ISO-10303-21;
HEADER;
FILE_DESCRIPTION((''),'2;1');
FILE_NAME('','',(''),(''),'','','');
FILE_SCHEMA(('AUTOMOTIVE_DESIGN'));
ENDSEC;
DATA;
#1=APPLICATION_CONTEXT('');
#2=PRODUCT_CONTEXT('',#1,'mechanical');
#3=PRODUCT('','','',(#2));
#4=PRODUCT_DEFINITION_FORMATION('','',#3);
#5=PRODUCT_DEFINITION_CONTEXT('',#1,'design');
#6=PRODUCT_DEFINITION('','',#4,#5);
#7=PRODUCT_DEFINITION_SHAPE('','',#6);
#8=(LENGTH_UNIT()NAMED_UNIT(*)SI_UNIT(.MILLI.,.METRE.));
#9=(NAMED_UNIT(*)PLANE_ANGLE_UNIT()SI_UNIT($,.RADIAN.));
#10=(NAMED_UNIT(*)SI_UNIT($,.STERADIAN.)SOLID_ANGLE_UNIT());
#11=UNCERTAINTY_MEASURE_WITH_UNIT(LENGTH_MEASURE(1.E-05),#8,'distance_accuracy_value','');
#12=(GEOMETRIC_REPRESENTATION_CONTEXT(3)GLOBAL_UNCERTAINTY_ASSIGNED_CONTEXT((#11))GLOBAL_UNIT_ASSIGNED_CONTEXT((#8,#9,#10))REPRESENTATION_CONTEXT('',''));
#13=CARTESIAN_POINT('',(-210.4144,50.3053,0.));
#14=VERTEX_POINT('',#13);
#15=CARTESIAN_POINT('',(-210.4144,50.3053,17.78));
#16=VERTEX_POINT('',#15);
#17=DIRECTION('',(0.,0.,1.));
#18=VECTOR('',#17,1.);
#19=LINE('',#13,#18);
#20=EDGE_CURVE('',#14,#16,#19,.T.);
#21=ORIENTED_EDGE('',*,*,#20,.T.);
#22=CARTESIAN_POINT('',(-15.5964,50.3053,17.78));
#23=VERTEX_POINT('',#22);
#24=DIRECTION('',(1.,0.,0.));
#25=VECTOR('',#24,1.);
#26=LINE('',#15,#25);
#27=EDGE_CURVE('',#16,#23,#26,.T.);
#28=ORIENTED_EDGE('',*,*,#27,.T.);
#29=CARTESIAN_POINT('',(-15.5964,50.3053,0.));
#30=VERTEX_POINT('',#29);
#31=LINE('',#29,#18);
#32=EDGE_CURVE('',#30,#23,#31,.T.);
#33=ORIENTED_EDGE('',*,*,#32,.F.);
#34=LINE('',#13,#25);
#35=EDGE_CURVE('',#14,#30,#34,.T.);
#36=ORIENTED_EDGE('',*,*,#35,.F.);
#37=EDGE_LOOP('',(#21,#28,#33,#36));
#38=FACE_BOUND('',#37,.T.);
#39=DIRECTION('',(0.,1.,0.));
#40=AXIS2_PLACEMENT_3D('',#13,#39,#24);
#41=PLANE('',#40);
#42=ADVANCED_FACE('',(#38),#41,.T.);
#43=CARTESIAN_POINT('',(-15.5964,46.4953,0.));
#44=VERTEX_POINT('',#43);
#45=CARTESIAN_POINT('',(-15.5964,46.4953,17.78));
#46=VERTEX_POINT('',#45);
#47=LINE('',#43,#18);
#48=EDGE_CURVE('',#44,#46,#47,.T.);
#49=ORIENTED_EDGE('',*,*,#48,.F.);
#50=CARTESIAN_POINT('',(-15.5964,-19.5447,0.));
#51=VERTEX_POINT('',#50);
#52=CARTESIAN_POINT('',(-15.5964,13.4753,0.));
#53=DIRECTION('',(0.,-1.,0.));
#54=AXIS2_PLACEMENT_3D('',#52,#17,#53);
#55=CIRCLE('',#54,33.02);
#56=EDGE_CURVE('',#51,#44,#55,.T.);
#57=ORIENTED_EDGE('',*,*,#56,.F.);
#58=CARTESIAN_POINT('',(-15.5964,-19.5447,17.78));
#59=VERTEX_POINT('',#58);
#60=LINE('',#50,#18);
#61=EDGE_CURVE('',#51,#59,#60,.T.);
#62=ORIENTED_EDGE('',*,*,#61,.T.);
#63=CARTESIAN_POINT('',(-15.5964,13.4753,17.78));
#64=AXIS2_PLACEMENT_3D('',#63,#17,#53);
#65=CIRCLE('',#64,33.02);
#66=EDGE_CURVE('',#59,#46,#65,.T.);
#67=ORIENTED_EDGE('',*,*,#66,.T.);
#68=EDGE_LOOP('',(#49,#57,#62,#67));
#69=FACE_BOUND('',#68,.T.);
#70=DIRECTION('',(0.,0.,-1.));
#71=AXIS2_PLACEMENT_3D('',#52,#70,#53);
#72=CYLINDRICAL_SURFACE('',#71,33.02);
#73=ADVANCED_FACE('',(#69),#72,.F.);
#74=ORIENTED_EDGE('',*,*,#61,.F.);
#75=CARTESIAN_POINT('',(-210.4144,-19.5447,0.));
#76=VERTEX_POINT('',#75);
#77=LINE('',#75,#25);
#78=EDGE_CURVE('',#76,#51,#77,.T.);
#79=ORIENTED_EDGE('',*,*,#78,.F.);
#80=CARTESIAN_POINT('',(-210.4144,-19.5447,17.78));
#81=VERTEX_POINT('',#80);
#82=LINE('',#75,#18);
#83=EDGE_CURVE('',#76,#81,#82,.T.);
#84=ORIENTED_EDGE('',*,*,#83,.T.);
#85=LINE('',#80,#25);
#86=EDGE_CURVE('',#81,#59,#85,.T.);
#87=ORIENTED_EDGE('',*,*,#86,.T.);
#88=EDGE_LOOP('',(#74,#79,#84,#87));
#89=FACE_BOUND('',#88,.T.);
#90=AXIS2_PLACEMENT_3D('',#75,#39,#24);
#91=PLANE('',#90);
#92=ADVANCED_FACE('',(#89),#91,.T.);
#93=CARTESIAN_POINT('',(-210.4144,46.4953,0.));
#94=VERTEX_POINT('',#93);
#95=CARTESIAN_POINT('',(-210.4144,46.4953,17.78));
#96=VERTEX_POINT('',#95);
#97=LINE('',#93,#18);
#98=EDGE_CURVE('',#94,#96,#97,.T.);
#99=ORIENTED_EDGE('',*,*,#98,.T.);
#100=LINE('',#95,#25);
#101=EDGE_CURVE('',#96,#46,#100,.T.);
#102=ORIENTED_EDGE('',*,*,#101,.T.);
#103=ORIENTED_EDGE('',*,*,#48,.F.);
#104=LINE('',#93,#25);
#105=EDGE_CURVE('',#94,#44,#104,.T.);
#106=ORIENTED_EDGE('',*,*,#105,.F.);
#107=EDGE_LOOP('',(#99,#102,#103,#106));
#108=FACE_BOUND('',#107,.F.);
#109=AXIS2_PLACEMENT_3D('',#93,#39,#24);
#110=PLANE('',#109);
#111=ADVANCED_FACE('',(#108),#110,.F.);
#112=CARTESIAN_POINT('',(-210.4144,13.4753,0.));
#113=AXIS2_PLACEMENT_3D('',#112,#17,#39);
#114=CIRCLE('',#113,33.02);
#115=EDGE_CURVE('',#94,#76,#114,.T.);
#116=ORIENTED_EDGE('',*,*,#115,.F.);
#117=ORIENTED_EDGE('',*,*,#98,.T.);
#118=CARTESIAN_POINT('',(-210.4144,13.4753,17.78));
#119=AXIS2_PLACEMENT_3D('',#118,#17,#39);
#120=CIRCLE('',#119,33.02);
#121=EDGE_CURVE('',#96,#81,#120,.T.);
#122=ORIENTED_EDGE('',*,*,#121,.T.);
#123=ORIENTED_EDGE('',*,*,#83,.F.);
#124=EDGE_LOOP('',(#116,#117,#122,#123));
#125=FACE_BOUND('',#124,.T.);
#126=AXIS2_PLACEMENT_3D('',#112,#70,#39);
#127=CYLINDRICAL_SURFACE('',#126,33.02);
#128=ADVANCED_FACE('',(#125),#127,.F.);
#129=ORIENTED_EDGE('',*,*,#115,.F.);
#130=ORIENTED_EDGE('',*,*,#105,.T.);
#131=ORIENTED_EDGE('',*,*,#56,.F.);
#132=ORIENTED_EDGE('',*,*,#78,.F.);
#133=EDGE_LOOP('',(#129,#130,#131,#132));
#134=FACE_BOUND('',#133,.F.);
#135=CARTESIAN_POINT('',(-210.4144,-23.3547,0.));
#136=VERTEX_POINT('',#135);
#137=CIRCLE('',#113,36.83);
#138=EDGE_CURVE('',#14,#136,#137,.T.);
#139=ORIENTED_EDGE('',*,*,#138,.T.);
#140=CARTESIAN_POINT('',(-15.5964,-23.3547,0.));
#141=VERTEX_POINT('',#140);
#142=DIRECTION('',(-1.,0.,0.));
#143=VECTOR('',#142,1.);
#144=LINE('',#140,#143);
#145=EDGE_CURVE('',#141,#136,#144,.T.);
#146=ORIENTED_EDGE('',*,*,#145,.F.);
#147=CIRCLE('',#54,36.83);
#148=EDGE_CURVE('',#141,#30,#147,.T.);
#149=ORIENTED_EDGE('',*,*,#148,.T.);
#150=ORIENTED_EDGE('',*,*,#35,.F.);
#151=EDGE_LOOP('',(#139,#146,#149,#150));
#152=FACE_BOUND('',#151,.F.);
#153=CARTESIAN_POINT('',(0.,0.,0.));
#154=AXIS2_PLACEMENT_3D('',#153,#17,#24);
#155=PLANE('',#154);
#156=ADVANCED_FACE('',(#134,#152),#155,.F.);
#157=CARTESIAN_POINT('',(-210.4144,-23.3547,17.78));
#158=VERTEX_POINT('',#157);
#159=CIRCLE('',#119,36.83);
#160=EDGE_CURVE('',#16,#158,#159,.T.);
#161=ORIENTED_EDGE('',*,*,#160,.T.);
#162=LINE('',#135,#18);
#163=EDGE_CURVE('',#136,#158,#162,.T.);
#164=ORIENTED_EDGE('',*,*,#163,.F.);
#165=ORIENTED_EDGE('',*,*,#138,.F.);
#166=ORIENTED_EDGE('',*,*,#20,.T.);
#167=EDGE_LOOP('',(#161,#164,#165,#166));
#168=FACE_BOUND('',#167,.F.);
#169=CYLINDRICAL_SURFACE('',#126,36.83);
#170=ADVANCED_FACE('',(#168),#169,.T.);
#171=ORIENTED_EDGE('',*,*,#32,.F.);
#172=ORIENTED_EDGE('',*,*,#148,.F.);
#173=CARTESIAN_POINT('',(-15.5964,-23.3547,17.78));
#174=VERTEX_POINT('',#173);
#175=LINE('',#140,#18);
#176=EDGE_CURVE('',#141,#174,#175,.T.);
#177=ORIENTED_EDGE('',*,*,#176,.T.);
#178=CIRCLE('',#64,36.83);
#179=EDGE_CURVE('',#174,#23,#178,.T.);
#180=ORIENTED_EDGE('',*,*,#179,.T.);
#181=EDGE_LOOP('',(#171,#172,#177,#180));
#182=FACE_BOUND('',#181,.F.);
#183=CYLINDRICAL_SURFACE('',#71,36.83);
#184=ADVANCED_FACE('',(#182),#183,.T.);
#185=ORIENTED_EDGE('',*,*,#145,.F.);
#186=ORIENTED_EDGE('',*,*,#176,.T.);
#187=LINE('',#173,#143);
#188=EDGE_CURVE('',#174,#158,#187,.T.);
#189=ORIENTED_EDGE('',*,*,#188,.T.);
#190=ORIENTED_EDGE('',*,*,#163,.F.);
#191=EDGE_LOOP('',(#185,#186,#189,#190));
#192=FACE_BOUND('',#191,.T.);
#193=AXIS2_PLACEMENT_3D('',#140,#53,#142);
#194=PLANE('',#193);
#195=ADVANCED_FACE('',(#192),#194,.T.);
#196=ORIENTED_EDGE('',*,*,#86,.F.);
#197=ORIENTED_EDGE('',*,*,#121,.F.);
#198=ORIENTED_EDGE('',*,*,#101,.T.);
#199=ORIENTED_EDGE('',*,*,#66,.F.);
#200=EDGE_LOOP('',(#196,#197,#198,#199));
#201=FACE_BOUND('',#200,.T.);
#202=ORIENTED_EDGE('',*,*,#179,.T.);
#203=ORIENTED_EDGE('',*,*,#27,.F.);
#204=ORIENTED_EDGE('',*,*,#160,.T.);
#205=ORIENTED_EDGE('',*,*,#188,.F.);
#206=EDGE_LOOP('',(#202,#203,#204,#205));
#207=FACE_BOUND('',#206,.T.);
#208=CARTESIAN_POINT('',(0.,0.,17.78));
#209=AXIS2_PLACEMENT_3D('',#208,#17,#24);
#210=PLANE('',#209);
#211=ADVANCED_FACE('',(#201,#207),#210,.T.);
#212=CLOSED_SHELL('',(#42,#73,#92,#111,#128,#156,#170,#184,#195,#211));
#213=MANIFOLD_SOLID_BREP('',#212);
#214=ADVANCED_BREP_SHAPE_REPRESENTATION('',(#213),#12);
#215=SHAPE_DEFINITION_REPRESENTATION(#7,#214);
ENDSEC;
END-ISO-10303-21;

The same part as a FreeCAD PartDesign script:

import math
import FreeCAD as App
import Part
import Sketcher
Q = App.Units.Quantity

doc = App.newDocument("Part")
body = doc.addObject("PartDesign::Body", "Body")

# Sketch on XY plane
sketch1 = body.newObject("Sketcher::SketchObject", "Sketch")
sketch1.AttachmentSupport = (doc.getObject("XY_Plane"), [""])
sketch1.MapMode = "FlatFace"
sketch1.addGeometry([
    Part.LineSegment(App.Vector(-210, -23, 0), App.Vector(-16, -23, 0)),  # 0
    Part.ArcOfCircle(Part.Circle(App.Vector(-16, 13, 0), App.Vector(0, 0, 1), 37), math.radians(-90), math.radians(90)),  # 1
    Part.LineSegment(App.Vector(-16, 50, 0), App.Vector(-210, 50, 0)),  # 2
    Part.ArcOfCircle(Part.Circle(App.Vector(-210, 13, 0), App.Vector(0, 0, 1), 37), math.radians(90), math.radians(270)),  # 3
    Part.ArcOfCircle(Part.Circle(App.Vector(-210, 13, 0), App.Vector(0, 0, 1), 33), math.radians(90), math.radians(270)),  # 4
    Part.LineSegment(App.Vector(-210, 46, 0), App.Vector(-16, 46, 0)),  # 5
    Part.ArcOfCircle(Part.Circle(App.Vector(-16, 13, 0), App.Vector(0, 0, 1), 33), math.radians(-90), math.radians(90)),  # 6
    Part.LineSegment(App.Vector(-16, -20, 0), App.Vector(-210, -20, 0)),  # 7
], False)
sketch1.addConstraint([
    Sketcher.Constraint("Tangent", 0, 2, 1, 1),
    Sketcher.Constraint("Tangent", 1, 2, 2, 1),
    Sketcher.Constraint("Tangent", 2, 2, 3, 1),
    Sketcher.Constraint("Tangent", 3, 2, 0, 1),
    Sketcher.Constraint("Tangent", 4, 1, 5, 1),
    Sketcher.Constraint("Tangent", 5, 2, 6, 2),
    Sketcher.Constraint("Tangent", 6, 1, 7, 1),
    Sketcher.Constraint("Tangent", 7, 2, 4, 2),
    Sketcher.Constraint("Horizontal", 0),
    Sketcher.Constraint("Horizontal", 2),
    Sketcher.Constraint("Horizontal", 5),
    Sketcher.Constraint("Horizontal", 7),
    Sketcher.Constraint("Coincident", 4, 3, 3, 3),
    Sketcher.Constraint("Vertical", 6, 3, 0, 2),
    Sketcher.Constraint("Radius", 4, Q("1.3 in")),
    Sketcher.Constraint("DistanceX", 0, 1, 0, 2, Q("7.67 in")),
    Sketcher.Constraint("Radius", 1, Q("1.45 in")),
    Sketcher.Constraint("DistanceX", 1, 3, -1, 1, 15.5964),
    Sketcher.Constraint("DistanceY", -1, 1, 1, 3, 13.4753),
])
pad1 = body.newObject("PartDesign::Pad", "Pad")
pad1.Profile = sketch1
pad1.Length = Q("0.7 in")

doc.recompute()
